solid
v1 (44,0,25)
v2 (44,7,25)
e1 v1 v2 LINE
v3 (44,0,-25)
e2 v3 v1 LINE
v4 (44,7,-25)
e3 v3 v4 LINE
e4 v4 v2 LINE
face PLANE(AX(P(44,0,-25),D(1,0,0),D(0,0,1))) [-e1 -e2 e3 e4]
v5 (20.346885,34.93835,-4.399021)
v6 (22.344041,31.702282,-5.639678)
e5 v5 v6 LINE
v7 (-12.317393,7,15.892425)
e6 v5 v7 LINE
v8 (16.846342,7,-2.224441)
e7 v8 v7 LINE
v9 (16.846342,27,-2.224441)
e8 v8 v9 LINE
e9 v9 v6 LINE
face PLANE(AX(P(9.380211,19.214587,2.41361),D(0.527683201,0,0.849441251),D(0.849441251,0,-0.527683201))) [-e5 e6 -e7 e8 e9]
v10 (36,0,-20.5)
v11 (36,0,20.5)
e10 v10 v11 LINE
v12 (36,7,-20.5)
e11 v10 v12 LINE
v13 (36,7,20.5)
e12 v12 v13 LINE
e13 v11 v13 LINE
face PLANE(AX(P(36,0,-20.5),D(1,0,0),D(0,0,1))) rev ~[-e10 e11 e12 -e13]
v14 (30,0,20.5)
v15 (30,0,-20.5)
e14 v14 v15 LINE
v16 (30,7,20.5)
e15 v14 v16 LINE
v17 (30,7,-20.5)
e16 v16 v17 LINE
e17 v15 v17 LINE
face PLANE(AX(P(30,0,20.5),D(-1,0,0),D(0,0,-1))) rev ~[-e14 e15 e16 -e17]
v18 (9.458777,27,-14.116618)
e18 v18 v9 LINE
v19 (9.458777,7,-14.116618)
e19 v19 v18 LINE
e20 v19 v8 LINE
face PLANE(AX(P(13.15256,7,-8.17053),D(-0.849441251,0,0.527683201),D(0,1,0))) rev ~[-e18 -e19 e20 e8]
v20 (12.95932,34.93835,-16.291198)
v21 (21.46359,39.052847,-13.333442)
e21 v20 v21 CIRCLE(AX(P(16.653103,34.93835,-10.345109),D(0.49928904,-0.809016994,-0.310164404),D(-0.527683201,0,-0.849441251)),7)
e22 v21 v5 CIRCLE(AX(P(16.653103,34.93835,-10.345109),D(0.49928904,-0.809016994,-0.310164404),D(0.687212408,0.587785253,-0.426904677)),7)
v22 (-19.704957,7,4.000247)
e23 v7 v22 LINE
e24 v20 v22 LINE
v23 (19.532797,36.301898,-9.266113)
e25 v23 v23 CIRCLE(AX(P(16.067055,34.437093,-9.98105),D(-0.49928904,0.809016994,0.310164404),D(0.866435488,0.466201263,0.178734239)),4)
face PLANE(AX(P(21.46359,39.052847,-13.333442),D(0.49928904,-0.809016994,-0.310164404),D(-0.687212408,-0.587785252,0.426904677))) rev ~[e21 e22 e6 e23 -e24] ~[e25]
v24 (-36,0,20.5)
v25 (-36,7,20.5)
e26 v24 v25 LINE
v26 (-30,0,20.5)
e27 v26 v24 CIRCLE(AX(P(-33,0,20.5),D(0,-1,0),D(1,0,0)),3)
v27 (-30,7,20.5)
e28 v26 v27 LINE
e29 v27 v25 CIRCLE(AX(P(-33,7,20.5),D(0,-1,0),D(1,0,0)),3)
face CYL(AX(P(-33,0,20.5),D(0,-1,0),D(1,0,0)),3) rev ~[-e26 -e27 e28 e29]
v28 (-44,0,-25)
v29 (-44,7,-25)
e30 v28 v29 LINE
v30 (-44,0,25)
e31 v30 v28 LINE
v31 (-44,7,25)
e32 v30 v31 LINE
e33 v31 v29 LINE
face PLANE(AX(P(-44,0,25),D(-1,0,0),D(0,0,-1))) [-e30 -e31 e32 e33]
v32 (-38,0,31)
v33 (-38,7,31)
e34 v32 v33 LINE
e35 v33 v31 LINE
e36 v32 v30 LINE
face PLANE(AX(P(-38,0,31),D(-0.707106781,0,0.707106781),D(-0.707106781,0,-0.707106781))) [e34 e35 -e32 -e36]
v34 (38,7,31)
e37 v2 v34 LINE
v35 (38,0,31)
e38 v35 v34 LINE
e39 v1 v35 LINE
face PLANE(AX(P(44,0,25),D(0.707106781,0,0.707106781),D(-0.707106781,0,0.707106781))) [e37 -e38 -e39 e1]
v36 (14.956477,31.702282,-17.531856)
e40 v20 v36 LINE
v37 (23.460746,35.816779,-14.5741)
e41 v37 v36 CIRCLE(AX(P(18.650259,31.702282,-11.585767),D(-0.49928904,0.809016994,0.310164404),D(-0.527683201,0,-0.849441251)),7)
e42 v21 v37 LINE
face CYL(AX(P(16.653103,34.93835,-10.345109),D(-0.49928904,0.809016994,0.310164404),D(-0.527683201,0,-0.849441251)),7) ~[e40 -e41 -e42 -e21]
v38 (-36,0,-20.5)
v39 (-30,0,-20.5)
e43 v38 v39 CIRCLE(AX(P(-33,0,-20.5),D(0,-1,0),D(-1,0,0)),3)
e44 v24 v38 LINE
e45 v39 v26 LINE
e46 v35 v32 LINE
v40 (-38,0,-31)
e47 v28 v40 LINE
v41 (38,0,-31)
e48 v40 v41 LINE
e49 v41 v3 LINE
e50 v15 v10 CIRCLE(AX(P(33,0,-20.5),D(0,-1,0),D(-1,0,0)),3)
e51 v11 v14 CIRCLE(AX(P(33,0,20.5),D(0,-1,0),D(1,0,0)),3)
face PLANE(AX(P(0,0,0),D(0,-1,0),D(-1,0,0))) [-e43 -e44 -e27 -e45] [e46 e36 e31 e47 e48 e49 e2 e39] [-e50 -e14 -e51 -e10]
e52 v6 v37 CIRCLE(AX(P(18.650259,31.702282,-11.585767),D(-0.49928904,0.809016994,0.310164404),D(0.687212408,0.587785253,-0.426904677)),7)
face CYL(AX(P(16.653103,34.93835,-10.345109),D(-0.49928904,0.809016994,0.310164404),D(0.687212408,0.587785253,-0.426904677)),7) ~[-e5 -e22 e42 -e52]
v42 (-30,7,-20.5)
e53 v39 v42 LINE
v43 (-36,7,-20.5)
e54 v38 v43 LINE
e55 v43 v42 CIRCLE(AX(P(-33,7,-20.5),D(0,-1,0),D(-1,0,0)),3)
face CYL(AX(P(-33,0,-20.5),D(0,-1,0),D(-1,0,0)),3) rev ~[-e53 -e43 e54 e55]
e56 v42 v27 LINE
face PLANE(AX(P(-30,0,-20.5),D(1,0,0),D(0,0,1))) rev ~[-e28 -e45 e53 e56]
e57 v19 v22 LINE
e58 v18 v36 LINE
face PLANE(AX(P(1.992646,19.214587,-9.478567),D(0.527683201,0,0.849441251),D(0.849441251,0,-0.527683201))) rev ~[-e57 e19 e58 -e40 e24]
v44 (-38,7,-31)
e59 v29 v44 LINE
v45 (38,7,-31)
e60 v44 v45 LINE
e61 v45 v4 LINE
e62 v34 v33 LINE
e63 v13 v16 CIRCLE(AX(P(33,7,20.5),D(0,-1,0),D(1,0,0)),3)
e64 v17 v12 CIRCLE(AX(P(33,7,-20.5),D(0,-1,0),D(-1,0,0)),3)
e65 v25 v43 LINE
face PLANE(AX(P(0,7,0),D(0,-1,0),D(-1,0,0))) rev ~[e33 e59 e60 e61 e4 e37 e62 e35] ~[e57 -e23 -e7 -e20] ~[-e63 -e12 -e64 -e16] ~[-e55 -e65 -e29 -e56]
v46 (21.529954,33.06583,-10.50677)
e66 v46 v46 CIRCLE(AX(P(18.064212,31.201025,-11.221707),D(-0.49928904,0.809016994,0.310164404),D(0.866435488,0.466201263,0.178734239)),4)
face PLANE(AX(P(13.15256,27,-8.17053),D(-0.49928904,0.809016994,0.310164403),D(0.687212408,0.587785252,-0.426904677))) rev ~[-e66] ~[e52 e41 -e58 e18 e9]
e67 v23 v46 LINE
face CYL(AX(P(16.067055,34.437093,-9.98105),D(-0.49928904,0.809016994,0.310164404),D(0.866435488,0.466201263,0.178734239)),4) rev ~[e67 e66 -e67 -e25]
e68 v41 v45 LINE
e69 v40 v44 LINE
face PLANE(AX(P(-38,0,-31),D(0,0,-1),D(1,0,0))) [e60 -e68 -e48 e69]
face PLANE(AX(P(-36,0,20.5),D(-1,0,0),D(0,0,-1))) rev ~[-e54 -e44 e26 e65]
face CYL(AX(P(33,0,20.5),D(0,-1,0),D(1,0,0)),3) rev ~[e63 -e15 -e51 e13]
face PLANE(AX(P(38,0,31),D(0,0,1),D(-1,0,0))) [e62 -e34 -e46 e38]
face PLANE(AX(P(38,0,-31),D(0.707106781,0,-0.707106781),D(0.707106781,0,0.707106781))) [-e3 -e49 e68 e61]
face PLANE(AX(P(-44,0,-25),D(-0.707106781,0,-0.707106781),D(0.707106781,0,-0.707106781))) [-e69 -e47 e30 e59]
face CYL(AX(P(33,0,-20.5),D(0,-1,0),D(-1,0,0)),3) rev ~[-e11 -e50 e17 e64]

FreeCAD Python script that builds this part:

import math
import FreeCAD as App
import Part
import Sketcher
Q = App.Units.Quantity

doc = App.newDocument("Part")
body = doc.addObject("PartDesign::Body", "Body")

# Sketch on XZ plane
sketch1 = body.newObject("Sketcher::SketchObject", "Sketch")
sketch1.AttachmentSupport = (doc.getObject("XZ_Plane"), [""])
sketch1.MapMode = "FlatFace"
sketch1.addGeometry([
    Part.LineSegment(App.Vector(-38, -31, 0), App.Vector(-44, -25, 0)),  # 0
    Part.LineSegment(App.Vector(-44, -25, 0), App.Vector(-44, 25, 0)),  # 1
    Part.LineSegment(App.Vector(-44, 25, 0), App.Vector(-38, 31, 0)),  # 2
    Part.LineSegment(App.Vector(-38, 31, 0), App.Vector(38, 31, 0)),  # 3
    Part.LineSegment(App.Vector(38, 31, 0), App.Vector(44, 25, 0)),  # 4
    Part.LineSegment(App.Vector(44, 25, 0), App.Vector(44, -25, 0)),  # 5
    Part.LineSegment(App.Vector(44, -25, 0), App.Vector(38, -31, 0)),  # 6
    Part.LineSegment(App.Vector(38, -31, 0), App.Vector(-38, -31, 0)),  # 7
    Part.LineSegment(App.Vector(30, 20.5, 0), App.Vector(30, -20.5, 0)),  # 8
    Part.ArcOfCircle(Part.Circle(App.Vector(33, -20.5, 0), App.Vector(0, 0, 1), 3), math.radians(180), math.radians(360)),  # 9
    Part.LineSegment(App.Vector(36, -20.5, 0), App.Vector(36, 20.5, 0)),  # 10
    Part.ArcOfCircle(Part.Circle(App.Vector(33, 20.5, 0), App.Vector(0, 0, 1), 3), math.radians(0), math.radians(180)),  # 11
    Part.LineSegment(App.Vector(-36, 20.5, 0), App.Vector(-36, -20.5, 0)),  # 12
    Part.ArcOfCircle(Part.Circle(App.Vector(-33, -20.5, 0), App.Vector(0, 0, 1), 3), math.radians(180), math.radians(360)),  # 13
    Part.LineSegment(App.Vector(-30, -20.5, 0), App.Vector(-30, 20.5, 0)),  # 14
    Part.ArcOfCircle(Part.Circle(App.Vector(-33, 20.5, 0), App.Vector(0, 0, 1), 3), math.radians(0), math.radians(180)),  # 15
], False)
sketch1.addConstraint([
    Sketcher.Constraint("Coincident", 0, 2, 1, 1),
    Sketcher.Constraint("Coincident", 1, 2, 2, 1),
    Sketcher.Constraint("Coincident", 2, 2, 3, 1),
    Sketcher.Constraint("Coincident", 3, 2, 4, 1),
    Sketcher.Constraint("Coincident", 4, 2, 5, 1),
    Sketcher.Constraint("Coincident", 5, 2, 6, 1),
    Sketcher.Constraint("Coincident", 6, 2, 7, 1),
    Sketcher.Constraint("Coincident", 7, 2, 0, 1),
    Sketcher.Constraint("Tangent", 8, 2, 9, 1),
    Sketcher.Constraint("Tangent", 9, 2, 10, 1),
    Sketcher.Constraint("Tangent", 10, 2, 11, 1),
    Sketcher.Constraint("Tangent", 11, 2, 8, 1),
    Sketcher.Constraint("Tangent", 12, 2, 13, 1),
    Sketcher.Constraint("Tangent", 13, 2, 14, 1),
    Sketcher.Constraint("Tangent", 14, 2, 15, 1),
    Sketcher.Constraint("Tangent", 15, 2, 12, 1),
    Sketcher.Constraint("Vertical", 1),
    Sketcher.Constraint("Horizontal", 3),
    Sketcher.Constraint("Vertical", 5),
    Sketcher.Constraint("Horizontal", 7),
    Sketcher.Constraint("Vertical", 8),
    Sketcher.Constraint("Vertical", 10),
    Sketcher.Constraint("Vertical", 12),
    Sketcher.Constraint("Vertical", 14),
    Sketcher.Constraint("Equal", 11, 13),
    Sketcher.Constraint("Symmetric", 11, 3, 13, 3, -1, 1),
    Sketcher.Constraint("Symmetric", 0, 2, 4, 2, -1, 1),
    Sketcher.Constraint("Symmetric", 2, 2, 6, 2, -1, 1),
    Sketcher.Constraint("Perpendicular", 0, 2),
    Sketcher.Constraint("Perpendicular", 2, 4),
    Sketcher.Constraint("Perpendicular", 4, 6),
    Sketcher.Constraint("Horizontal", 9, 3, 13, 3),
    Sketcher.Constraint("Horizontal", 11, 3, 15, 3),
    Sketcher.Constraint("Horizontal", 1, 2, 4, 2),
    Sketcher.Constraint("Vertical", 3, 2, 6, 2),
    Sketcher.Constraint("Radius", 9, 3.0),
    Sketcher.Constraint("DistanceX", 3, 1, 3, 2, 76.0),
    Sketcher.Constraint("DistanceY", 1, 1, 1, 2, 50.0),
    Sketcher.Constraint("DistanceY", 8, 2, 8, 1, 41.0),
    Sketcher.Constraint("DistanceX", -1, 1, 9, 3, 33.0),
    Sketcher.Constraint("DistanceX", 0, 2, -1, 1, 44.0),
])
pad1 = body.newObject("PartDesign::Pad", "Pad")
pad1.Profile = sketch1
pad1.Length = 7
pad1.Reversed = True

# Sketch on an angled plane
sketch2 = body.newObject("Sketcher::SketchObject", "Sketch001")
sketch2.Placement = App.Placement(App.Vector(0, 0, 0), App.Rotation(App.Vector(-0.849441251, 0, 0.527683201), App.Vector(0, 1, 0), App.Vector(-0.527683201, 0, -0.849441251), "ZXY"))
sketch2.addGeometry([
    Part.LineSegment(App.Vector(-15.5, 7, 0), App.Vector(18.8, 7, 0)),  # 0
    Part.LineSegment(App.Vector(18.8, 7, 0), App.Vector(-25.3, 39.1, 0)),  # 1
    Part.LineSegment(App.Vector(-25.3, 39.1, 0), App.Vector(-27.6, 35.8, 0)),  # 2
    Part.LineSegment(App.Vector(-27.6, 35.8, 0), App.Vector(-15.5, 27, 0)),  # 3
    Part.LineSegment(App.Vector(-15.5, 27, 0), App.Vector(-15.5, 7, 0)),  # 4
], False)
sketch2.addConstraint([
    Sketcher.Constraint("Coincident", 0, 2, 1, 1),
    Sketcher.Constraint("Coincident", 1, 2, 2, 1),
    Sketcher.Constraint("Coincident", 2, 2, 3, 1),
    Sketcher.Constraint("Coincident", 3, 2, 4, 1),
    Sketcher.Constraint("Coincident", 4, 2, 0, 1),
    Sketcher.Constraint("Horizontal", 0),
    Sketcher.Constraint("Vertical", 4),
    Sketcher.Constraint("Perpendicular", 1, 2),
    Sketcher.Constraint("Perpendicular", 2, 3),
    Sketcher.Constraint("DistanceY", 4, 2, 4, 1, 20.0),
    Sketcher.Constraint("Angle", 1, Q("144 deg")),
    Sketcher.Constraint("Distance", 2, 4.0),
    Sketcher.Constraint("Distance", 3, 15.0),
    Sketcher.Constraint("DistanceY", -1, 1, 0, 2, 7.0),
    Sketcher.Constraint("DistanceX", 1, 2, -1, 1, 25.267892),
])
pad2 = body.newObject("PartDesign::Pad", "Pad001")
pad2.Profile = sketch2
pad2.Length = 14
pad2.Midplane = True

# Sketch on an angled plane
sketch3 = body.newObject("Sketcher::SketchObject", "Sketch002")
sketch3.Placement = App.Placement(App.Vector(-8.359258, 13.544823, 5.192872), App.Rotation(App.Vector(0.866435488, 0.466201263, 0.178734239), App.Vector(0, 0.357977493, -0.933730215), App.Vector(-0.49928904, 0.809016994, 0.310164404), "ZXY"))
sketch3.addGeometry([
    Part.LineSegment(App.Vector(30, 32, 0), App.Vector(25, 28, 0)),  # 0
    Part.ArcOfCircle(Part.Circle(App.Vector(29, 22, 0), App.Vector(0, 0, 1), 7), math.radians(38), math.radians(128)),  # 1
    Part.LineSegment(App.Vector(34, 26, 0), App.Vector(30, 32, 0)),  # 2
    Part.LineSegment(App.Vector(39, 21, 0), App.Vector(34, 26, 0)),  # 3
    Part.ArcOfCircle(Part.Circle(App.Vector(29, 22, 0), App.Vector(0, 0, 1), 7), math.radians(-52), math.radians(38)),  # 4
    Part.LineSegment(App.Vector(33, 17, 0), App.Vector(39, 21, 0)),  # 5
], False)
sketch3.addConstraint([
    Sketcher.Constraint("Tangent", 0, 2, 1, 2),
    Sketcher.Constraint("Tangent", 1, 1, 2, 1),
    Sketcher.Constraint("Coincident", 2, 2, 0, 1),
    Sketcher.Constraint("Tangent", 3, 2, 4, 2),
    Sketcher.Constraint("Tangent", 4, 1, 5, 1),
    Sketcher.Constraint("Coincident", 5, 2, 3, 1),
    Sketcher.Constraint("Coincident", 4, 3, 1, 3),
    Sketcher.Constraint("Coincident", 3, 2, 1, 1),
    Sketcher.Constraint("Perpendicular", 0, 2),
    Sketcher.Constraint("Perpendicular", 3, 5),
    Sketcher.Constraint("Radius", 1, 7.0),
    Sketcher.Constraint("DistanceX", -1, 1, 1, 1, 34.42016),
    Sketcher.Constraint("DistanceY", -1, 1, 2, 2, 31.981921),
    Sketcher.Constraint("DistanceX", -1, 1, 4, 1, 33.131311),
])
pocket1 = body.newObject("PartDesign::Pocket", "Pocket")
pocket1.Profile = sketch3
pocket1.Length = 14

# Sketch on an angled plane
sketch4 = body.newObject("Sketcher::SketchObject", "Sketch003")
sketch4.Placement = App.Placement(App.Vector(-8.359258, 13.544823, 5.192872), App.Rotation(App.Vector(0.866435488, 0.466201263, 0.178734239), App.Vector(0, 0.357977493, -0.933730215), App.Vector(-0.49928904, 0.809016994, 0.310164404), "ZXY"))
sketch4.addGeometry(Part.Circle(App.Vector(28.2, 21.6, 0), App.Vector(0, 0, 1), 4), False)
sketch4.addConstraint([
    Sketcher.Constraint("Diameter", 0, 8.0),
    Sketcher.Constraint("DistanceX", -1, 1, 0, 3, 28.191728),
    Sketcher.Constraint("DistanceY", -1, 1, 0, 3, 21.647312),
])
pocket2 = body.newObject("PartDesign::Pocket", "Pocket001")
pocket2.Profile = sketch4
pocket2.Length = 14

doc.recompute()
